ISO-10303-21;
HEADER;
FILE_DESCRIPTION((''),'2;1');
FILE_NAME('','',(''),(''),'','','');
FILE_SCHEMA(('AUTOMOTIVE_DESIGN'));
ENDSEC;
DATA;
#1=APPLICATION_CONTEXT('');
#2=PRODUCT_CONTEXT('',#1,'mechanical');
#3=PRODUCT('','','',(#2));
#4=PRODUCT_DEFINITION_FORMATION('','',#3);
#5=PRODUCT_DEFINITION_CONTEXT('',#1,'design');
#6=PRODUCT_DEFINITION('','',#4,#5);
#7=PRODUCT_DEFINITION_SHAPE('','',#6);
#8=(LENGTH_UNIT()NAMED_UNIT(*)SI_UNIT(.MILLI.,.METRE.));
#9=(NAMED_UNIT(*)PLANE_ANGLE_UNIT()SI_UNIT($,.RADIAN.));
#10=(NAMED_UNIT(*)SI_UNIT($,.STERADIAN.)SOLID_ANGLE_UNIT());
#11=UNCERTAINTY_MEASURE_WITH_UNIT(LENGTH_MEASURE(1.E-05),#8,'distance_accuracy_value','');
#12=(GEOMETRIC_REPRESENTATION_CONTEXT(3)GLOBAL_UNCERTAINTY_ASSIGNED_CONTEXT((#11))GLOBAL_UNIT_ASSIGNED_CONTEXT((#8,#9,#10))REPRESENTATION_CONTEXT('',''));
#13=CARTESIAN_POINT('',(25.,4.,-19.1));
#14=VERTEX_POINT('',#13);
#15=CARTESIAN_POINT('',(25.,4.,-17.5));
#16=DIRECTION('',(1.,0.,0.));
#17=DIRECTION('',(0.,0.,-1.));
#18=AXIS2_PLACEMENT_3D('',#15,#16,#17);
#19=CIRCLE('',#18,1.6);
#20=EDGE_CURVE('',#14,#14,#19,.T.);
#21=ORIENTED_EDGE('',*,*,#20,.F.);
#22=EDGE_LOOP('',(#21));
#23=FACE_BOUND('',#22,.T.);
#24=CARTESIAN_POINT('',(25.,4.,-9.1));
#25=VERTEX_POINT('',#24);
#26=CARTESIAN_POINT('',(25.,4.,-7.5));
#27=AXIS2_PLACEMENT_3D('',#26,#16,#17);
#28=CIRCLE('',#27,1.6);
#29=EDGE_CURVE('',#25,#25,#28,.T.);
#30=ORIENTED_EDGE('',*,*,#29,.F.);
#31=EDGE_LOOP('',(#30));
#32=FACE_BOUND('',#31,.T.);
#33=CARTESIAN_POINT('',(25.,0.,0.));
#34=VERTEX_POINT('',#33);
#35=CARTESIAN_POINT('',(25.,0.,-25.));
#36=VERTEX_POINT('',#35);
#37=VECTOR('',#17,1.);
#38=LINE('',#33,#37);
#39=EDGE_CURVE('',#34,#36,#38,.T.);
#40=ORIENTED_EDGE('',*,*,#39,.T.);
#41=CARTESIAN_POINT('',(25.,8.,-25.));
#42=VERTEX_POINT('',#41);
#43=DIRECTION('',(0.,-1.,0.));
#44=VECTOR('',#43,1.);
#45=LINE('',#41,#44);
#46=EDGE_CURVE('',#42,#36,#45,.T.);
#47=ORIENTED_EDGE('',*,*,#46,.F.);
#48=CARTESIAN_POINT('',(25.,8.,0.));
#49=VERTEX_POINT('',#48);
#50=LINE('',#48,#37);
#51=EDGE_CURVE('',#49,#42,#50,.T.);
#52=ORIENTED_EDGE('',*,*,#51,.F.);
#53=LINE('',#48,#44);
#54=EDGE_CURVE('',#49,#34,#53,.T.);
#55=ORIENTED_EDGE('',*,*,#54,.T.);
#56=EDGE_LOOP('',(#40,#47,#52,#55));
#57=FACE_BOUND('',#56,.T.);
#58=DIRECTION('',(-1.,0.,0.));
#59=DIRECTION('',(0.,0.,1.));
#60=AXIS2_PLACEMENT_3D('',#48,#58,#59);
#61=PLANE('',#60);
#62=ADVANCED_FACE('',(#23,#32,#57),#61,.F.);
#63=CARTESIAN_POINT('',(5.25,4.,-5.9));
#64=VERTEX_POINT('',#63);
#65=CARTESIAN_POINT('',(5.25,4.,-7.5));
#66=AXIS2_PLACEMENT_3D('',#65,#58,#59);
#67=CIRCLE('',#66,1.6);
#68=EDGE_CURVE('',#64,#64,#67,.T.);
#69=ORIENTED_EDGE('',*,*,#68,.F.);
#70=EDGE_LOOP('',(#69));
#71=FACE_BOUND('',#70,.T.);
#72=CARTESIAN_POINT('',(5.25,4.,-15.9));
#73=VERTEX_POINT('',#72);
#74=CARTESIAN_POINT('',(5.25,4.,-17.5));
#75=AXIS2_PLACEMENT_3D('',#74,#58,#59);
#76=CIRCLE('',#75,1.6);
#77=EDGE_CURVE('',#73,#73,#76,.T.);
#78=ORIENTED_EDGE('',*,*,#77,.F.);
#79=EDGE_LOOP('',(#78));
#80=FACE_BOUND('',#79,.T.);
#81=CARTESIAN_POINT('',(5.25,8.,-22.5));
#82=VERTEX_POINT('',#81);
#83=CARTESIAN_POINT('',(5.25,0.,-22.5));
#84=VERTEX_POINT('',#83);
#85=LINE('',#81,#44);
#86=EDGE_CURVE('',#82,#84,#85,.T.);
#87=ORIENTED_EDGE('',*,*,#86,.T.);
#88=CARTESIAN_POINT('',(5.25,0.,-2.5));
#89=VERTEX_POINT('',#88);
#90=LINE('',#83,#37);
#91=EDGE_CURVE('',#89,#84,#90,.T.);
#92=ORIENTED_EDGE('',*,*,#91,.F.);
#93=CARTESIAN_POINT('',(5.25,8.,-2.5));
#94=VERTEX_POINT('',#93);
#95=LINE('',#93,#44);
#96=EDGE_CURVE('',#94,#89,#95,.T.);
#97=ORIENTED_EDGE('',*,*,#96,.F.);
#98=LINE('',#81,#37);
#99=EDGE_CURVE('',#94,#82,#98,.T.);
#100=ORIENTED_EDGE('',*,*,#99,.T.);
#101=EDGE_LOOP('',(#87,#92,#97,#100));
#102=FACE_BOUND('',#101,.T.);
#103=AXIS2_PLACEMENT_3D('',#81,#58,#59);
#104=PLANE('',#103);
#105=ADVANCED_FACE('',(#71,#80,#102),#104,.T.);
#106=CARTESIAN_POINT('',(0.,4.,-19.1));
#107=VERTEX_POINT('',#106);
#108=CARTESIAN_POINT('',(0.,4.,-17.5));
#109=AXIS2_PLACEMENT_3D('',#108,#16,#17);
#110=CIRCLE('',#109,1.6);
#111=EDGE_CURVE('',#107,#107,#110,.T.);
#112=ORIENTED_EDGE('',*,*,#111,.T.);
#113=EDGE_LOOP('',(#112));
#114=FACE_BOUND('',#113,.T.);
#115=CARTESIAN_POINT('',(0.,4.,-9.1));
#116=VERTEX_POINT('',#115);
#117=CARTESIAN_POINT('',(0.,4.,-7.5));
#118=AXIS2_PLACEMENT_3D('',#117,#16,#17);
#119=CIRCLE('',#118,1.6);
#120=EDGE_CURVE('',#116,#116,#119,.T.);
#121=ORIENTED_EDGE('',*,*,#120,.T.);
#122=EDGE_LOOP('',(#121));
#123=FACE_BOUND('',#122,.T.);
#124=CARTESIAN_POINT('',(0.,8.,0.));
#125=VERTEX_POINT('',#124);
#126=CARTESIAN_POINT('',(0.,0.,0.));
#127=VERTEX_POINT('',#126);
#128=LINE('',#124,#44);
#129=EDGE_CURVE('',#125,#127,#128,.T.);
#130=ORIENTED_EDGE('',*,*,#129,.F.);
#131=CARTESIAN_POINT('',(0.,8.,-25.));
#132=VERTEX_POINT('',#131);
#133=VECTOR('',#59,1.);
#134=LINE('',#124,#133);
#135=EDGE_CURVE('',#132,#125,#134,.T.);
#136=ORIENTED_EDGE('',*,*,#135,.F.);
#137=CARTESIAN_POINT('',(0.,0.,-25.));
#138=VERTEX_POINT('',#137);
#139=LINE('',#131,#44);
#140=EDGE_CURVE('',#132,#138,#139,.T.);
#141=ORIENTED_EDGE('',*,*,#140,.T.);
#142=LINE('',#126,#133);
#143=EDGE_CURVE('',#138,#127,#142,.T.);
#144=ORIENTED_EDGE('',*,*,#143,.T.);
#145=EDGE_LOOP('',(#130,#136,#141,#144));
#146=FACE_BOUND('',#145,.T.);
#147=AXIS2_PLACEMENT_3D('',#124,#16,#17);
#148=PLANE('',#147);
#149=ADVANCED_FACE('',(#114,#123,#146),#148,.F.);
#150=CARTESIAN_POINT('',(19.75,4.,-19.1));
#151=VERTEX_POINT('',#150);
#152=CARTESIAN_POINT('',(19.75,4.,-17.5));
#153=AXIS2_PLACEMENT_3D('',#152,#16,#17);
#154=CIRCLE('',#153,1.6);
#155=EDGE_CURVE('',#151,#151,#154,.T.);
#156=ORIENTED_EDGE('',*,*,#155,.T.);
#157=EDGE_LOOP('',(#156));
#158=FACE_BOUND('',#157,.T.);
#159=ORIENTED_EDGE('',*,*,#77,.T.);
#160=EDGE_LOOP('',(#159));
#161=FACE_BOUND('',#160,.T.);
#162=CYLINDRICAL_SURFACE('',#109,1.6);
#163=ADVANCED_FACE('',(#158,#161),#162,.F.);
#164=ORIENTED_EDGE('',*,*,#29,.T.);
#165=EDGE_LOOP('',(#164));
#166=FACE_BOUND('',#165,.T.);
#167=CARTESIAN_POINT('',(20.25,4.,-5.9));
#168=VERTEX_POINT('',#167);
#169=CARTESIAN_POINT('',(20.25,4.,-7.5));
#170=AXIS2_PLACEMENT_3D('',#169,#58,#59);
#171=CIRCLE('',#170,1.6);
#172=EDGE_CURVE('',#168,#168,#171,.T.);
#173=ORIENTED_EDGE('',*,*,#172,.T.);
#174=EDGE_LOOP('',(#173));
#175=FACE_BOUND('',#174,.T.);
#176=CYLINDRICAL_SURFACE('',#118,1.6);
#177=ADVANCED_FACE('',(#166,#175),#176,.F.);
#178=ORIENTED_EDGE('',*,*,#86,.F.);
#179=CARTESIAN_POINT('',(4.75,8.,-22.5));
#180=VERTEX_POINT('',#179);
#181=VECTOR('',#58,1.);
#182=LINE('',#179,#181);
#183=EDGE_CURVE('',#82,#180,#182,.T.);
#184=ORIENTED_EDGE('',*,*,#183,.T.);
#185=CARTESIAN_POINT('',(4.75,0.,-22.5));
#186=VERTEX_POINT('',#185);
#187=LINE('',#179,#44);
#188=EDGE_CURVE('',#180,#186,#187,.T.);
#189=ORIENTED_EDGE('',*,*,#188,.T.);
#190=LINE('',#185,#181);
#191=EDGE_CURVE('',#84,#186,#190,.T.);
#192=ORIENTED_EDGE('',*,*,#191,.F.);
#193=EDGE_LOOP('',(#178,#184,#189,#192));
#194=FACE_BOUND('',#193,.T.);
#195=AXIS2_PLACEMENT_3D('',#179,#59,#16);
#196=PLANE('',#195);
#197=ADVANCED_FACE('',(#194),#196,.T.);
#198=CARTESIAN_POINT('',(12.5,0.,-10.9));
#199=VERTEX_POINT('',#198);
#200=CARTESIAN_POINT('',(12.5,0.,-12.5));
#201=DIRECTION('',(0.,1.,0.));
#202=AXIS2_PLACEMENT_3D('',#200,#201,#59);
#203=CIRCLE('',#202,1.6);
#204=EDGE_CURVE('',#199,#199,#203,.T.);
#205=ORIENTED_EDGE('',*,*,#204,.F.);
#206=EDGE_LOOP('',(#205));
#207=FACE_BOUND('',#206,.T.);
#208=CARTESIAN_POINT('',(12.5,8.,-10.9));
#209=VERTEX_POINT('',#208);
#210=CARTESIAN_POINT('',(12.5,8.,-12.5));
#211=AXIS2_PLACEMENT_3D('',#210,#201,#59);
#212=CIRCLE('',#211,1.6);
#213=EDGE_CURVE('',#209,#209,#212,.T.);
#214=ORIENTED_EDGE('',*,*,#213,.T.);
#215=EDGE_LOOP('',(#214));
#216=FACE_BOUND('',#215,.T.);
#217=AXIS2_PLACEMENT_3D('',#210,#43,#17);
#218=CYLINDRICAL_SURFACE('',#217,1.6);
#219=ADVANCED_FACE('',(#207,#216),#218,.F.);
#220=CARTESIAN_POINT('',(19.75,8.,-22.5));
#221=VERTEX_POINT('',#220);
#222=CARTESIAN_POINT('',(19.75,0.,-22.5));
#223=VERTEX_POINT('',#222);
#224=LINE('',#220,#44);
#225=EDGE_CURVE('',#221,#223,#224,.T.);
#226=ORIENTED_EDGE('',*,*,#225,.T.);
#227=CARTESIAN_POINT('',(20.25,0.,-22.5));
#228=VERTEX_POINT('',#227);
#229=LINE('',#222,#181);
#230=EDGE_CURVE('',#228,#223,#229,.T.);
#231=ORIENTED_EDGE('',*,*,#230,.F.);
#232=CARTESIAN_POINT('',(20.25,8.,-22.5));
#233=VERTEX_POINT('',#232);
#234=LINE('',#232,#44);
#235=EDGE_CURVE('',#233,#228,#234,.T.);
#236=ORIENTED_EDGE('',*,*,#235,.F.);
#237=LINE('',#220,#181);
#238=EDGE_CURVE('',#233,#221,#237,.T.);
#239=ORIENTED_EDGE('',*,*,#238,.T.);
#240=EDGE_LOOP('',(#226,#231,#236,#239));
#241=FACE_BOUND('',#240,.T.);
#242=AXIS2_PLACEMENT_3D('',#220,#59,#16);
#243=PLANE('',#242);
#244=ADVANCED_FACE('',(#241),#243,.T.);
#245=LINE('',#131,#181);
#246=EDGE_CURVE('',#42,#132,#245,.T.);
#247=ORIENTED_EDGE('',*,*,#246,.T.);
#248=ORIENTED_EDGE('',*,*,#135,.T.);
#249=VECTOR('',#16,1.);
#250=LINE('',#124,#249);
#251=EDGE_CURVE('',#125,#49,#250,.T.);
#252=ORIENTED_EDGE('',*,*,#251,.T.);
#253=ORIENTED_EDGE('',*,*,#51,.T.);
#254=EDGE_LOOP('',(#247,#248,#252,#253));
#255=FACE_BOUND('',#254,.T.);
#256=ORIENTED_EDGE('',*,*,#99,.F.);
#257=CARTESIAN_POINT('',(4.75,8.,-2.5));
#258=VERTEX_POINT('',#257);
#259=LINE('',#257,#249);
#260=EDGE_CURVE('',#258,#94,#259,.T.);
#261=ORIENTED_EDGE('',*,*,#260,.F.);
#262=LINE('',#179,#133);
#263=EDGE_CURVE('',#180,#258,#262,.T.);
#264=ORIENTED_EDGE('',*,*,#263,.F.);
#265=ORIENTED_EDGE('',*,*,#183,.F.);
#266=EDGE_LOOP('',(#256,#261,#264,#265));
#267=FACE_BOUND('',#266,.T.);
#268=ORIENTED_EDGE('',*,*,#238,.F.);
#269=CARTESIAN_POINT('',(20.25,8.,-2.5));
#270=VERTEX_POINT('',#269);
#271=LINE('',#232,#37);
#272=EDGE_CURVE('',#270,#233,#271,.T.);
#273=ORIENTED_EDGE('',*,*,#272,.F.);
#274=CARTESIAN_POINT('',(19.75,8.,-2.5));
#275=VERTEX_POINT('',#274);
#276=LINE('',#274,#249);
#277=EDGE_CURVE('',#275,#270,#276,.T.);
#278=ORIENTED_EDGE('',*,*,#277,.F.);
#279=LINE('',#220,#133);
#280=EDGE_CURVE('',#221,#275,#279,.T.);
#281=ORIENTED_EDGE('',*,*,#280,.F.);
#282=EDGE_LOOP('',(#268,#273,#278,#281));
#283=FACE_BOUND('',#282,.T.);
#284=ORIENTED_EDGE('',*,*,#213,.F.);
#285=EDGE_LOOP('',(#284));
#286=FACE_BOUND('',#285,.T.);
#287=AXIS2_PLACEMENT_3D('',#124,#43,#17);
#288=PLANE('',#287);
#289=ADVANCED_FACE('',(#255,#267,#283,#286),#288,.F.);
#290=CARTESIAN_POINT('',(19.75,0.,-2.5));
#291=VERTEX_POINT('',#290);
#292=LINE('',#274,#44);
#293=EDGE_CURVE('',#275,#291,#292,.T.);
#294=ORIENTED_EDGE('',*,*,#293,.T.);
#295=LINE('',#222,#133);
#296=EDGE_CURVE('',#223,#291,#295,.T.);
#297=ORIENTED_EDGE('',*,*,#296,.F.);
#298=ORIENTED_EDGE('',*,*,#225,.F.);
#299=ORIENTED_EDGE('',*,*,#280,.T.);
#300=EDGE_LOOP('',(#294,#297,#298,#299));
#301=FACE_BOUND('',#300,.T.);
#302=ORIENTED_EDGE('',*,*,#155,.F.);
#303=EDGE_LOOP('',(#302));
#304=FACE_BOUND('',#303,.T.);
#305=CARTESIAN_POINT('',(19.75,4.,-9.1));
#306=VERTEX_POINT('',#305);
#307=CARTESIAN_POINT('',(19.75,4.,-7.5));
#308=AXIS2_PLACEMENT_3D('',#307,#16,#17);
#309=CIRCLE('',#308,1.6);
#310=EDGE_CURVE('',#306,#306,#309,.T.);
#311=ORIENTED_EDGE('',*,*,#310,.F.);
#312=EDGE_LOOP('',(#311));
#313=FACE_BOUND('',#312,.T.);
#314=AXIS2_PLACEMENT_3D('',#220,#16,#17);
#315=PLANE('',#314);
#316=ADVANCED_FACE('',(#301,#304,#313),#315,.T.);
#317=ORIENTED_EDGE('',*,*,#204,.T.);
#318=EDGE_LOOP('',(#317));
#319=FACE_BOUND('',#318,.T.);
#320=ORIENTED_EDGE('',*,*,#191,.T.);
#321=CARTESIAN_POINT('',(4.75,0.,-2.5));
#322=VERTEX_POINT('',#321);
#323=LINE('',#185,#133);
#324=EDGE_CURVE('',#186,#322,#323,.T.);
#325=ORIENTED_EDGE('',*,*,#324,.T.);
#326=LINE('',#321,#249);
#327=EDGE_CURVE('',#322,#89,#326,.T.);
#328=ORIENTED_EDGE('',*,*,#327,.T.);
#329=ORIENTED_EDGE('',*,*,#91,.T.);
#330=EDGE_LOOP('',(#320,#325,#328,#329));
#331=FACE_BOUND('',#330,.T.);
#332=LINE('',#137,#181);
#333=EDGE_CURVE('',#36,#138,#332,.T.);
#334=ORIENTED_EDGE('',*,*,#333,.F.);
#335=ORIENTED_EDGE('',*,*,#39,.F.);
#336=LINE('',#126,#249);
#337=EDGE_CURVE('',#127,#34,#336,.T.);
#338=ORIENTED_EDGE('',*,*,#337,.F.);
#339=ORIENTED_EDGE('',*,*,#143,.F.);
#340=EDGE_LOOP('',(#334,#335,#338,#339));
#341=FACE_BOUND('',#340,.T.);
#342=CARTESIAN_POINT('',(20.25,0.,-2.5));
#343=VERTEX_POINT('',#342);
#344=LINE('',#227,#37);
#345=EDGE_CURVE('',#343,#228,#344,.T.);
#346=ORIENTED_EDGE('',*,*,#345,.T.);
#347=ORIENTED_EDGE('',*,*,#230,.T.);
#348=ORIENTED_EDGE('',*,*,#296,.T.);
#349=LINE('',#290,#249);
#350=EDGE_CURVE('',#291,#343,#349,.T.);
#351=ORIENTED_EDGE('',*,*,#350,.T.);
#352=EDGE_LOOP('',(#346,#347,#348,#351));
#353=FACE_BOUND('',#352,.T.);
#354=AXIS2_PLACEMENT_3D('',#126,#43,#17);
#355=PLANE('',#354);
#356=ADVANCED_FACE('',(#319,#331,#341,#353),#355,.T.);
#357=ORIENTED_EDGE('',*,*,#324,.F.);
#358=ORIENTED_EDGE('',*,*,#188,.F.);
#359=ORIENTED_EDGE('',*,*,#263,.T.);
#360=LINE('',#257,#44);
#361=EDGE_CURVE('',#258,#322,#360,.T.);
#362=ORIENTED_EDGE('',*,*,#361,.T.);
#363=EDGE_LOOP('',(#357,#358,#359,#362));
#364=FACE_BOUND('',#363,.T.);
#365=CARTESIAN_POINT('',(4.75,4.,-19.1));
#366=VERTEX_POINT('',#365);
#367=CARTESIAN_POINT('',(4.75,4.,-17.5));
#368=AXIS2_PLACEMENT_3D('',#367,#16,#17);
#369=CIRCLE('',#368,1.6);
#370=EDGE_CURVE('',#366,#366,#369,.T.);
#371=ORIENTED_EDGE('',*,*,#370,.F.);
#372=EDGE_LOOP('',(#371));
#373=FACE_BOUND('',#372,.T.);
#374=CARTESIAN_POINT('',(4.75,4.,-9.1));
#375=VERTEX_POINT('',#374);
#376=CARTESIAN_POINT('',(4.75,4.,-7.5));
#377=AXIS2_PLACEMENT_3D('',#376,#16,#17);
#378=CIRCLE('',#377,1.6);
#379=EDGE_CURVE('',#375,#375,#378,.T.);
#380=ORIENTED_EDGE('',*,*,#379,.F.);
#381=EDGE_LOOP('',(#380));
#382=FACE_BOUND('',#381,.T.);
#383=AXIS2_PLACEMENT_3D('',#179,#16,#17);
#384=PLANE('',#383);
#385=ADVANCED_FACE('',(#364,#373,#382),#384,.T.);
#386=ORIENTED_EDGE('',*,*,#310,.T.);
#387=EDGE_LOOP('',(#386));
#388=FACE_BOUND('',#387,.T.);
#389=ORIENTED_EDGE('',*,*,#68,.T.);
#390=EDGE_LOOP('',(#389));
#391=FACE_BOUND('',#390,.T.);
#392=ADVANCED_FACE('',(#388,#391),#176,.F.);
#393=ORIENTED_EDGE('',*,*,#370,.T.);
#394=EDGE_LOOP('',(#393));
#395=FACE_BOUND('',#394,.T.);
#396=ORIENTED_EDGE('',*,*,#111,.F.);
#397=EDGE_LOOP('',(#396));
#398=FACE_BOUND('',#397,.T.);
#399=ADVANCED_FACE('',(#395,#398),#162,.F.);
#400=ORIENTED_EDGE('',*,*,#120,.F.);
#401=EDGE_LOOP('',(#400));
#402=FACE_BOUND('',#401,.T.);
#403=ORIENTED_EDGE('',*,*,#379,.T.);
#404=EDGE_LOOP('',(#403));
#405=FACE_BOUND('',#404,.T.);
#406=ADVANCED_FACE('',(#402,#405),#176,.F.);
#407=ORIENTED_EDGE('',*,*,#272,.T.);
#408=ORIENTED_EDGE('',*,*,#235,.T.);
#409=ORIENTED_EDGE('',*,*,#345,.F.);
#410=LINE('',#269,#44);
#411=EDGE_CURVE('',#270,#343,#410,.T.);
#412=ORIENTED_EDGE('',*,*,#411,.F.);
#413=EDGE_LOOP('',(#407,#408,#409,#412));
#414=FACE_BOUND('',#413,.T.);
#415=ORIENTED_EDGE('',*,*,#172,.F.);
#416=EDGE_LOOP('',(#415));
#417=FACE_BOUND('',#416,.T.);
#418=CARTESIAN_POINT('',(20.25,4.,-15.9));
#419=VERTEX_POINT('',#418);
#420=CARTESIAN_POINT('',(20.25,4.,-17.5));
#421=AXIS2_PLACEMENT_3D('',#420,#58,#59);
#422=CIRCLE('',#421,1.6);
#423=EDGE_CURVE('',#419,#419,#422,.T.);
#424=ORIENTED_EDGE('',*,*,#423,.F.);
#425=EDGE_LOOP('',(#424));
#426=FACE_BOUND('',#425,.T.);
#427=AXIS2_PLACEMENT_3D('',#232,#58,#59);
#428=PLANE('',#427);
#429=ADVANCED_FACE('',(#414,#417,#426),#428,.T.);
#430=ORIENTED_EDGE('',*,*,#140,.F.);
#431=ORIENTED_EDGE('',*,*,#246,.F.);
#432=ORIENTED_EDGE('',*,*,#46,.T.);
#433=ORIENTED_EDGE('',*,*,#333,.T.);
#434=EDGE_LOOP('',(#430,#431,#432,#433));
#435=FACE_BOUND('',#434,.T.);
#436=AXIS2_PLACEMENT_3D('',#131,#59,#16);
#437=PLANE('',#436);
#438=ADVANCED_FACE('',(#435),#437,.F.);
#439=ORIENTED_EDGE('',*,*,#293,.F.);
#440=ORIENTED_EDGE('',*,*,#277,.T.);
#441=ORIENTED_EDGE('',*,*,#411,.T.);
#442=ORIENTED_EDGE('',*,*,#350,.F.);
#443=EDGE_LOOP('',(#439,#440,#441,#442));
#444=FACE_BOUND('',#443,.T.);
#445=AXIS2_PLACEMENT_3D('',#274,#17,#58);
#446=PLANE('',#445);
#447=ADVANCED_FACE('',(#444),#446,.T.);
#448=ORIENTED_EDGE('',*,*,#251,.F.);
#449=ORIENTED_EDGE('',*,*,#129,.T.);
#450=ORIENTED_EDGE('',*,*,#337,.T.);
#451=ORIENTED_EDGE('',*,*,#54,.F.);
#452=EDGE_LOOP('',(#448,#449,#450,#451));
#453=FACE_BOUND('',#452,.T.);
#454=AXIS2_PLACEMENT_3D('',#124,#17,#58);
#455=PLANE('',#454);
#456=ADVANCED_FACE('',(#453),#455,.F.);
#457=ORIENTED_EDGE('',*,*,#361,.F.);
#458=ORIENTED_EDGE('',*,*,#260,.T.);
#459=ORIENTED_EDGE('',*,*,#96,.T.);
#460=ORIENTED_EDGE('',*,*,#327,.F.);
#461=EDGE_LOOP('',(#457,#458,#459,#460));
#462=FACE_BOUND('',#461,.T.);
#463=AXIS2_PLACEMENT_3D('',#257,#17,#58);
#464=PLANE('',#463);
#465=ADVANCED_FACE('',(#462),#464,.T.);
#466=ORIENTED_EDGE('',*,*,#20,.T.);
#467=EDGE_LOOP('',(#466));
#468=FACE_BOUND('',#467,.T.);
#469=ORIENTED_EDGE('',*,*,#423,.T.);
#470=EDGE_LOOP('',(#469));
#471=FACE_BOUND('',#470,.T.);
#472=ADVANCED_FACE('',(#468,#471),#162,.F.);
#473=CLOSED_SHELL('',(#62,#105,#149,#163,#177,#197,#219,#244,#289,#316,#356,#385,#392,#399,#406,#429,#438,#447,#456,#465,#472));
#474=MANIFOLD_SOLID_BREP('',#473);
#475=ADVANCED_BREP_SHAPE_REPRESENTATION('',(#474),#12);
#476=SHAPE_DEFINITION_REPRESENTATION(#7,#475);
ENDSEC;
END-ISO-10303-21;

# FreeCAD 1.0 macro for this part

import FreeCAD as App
import Part
import Sketcher


def add_polygon(sketch, points):
    """Adds a closed chain of lines whose ends are joined by coincident constraints."""
    first, n = sketch.GeometryCount, len(points)
    for a, b in zip(points, points[1:] + points[:1]):
        sketch.addGeometry(Part.LineSegment(App.Vector(*a, 0), App.Vector(*b, 0)), False)
    for i in range(n):
        sketch.addConstraint(Sketcher.Constraint("Coincident", first + i, 2, first + (i + 1) % n, 1))

doc = App.newDocument("Part")
body = doc.addObject("PartDesign::Body", "Body")

sketch1 = body.newObject("Sketcher::SketchObject", "Sketch")
sketch1.AttachmentSupport = (doc.getObject("XZ_Plane"), [""])
sketch1.MapMode = "FlatFace"
add_polygon(sketch1, [(0, -25), (0, 0), (25, 0), (25, -25)])
add_polygon(sketch1, [(5.25, -2.5), (4.75, -2.5), (4.75, -22.5), (5.25, -22.5)])
sketch1.addGeometry(Part.Circle(App.Vector(12.5, -12.5, 0), App.Vector(0, 0, 1), 1.6), False)
add_polygon(sketch1, [(20.25, -2.5), (19.75, -2.5), (19.75, -22.5), (20.25, -22.5)])
sketch1.addConstraint(Sketcher.Constraint("Vertical", 0))
sketch1.addConstraint(Sketcher.Constraint("Horizontal", 1))
sketch1.addConstraint(Sketcher.Constraint("Vertical", 2))
sketch1.addConstraint(Sketcher.Constraint("Horizontal", 3))
sketch1.addConstraint(Sketcher.Constraint("Horizontal", 4))
sketch1.addConstraint(Sketcher.Constraint("Vertical", 5))
sketch1.addConstraint(Sketcher.Constraint("Horizontal", 6))
sketch1.addConstraint(Sketcher.Constraint("Vertical", 7))
sketch1.addConstraint(Sketcher.Constraint("Horizontal", 9))
sketch1.addConstraint(Sketcher.Constraint("Vertical", 10))
sketch1.addConstraint(Sketcher.Constraint("Horizontal", 11))
sketch1.addConstraint(Sketcher.Constraint("Vertical", 12))
sketch1.addConstraint(Sketcher.Constraint("Coincident", 0, 2, -1, 1))
sketch1.addConstraint(Sketcher.Constraint("Horizontal", 7, 2, 9, 2))
sketch1.addConstraint(Sketcher.Constraint("Horizontal", 6, 2, 10, 2))
sketch1.addConstraint(Sketcher.Constraint("Equal", 6, 9))
sketch1.addConstraint(Sketcher.Constraint("Equal", 3, 0))
sketch1.addConstraint(Sketcher.Constraint("Diameter", 8, 3.2))
sketch1.addConstraint(Sketcher.Constraint("DistanceX", 1, 1, 1, 2, 25.0))
sketch1.addConstraint(Sketcher.Constraint("DistanceY", 5, 2, 5, 1, 20.0))
sketch1.addConstraint(Sketcher.Constraint("DistanceX", 4, 2, 4, 1, 0.5))
sketch1.addConstraint(Sketcher.Constraint("DistanceY", 8, 3, 4, 2, 10.0))
sketch1.addConstraint(Sketcher.Constraint("DistanceX", 4, 2, 9, 2, 15.0))
sketch1.addConstraint(Sketcher.Constraint("DistanceX", -1, 1, 8, 3, 12.5))
sketch1.addConstraint(Sketcher.Constraint("DistanceY", 8, 3, -1, 1, 12.5))
sketch1.addConstraint(Sketcher.Constraint("DistanceX", -1, 1, 4, 2, 4.75))
pad1 = body.newObject("PartDesign::Pad", "Pad")
pad1.Profile = sketch1
pad1.Length = 8
pad1.Reversed = True

sketch2 = body.newObject("Sketcher::SketchObject", "Sketch001")
sketch2.AttachmentSupport = (doc.getObject("YZ_Plane"), [""])
sketch2.MapMode = "FlatFace"
sketch2.AttachmentOffset = App.Placement(App.Vector(0, 0, 25), App.Rotation())
sketch2.addGeometry(Part.Circle(App.Vector(4, -7.5, 0), App.Vector(0, 0, 1), 1.6), False)
sketch2.addGeometry(Part.Circle(App.Vector(4, -17.5, 0), App.Vector(0, 0, 1), 1.6), False)
sketch2.addConstraint(Sketcher.Constraint("Equal", 0, 1))
sketch2.addConstraint(Sketcher.Constraint("Vertical", 0, 3, 1, 3))
sketch2.addConstraint(Sketcher.Constraint("Diameter", 0, 3.2))
sketch2.addConstraint(Sketcher.Constraint("DistanceX", -1, 1, 0, 3, 4.0))
sketch2.addConstraint(Sketcher.Constraint("DistanceY", 1, 3, 0, 3, 10.0))
sketch2.addConstraint(Sketcher.Constraint("DistanceY", 0, 3, -1, 1, 7.5))
pocket1 = body.newObject("PartDesign::Pocket", "Pocket")
pocket1.Profile = sketch2
pocket1.Type = "ThroughAll"

doc.recompute()
